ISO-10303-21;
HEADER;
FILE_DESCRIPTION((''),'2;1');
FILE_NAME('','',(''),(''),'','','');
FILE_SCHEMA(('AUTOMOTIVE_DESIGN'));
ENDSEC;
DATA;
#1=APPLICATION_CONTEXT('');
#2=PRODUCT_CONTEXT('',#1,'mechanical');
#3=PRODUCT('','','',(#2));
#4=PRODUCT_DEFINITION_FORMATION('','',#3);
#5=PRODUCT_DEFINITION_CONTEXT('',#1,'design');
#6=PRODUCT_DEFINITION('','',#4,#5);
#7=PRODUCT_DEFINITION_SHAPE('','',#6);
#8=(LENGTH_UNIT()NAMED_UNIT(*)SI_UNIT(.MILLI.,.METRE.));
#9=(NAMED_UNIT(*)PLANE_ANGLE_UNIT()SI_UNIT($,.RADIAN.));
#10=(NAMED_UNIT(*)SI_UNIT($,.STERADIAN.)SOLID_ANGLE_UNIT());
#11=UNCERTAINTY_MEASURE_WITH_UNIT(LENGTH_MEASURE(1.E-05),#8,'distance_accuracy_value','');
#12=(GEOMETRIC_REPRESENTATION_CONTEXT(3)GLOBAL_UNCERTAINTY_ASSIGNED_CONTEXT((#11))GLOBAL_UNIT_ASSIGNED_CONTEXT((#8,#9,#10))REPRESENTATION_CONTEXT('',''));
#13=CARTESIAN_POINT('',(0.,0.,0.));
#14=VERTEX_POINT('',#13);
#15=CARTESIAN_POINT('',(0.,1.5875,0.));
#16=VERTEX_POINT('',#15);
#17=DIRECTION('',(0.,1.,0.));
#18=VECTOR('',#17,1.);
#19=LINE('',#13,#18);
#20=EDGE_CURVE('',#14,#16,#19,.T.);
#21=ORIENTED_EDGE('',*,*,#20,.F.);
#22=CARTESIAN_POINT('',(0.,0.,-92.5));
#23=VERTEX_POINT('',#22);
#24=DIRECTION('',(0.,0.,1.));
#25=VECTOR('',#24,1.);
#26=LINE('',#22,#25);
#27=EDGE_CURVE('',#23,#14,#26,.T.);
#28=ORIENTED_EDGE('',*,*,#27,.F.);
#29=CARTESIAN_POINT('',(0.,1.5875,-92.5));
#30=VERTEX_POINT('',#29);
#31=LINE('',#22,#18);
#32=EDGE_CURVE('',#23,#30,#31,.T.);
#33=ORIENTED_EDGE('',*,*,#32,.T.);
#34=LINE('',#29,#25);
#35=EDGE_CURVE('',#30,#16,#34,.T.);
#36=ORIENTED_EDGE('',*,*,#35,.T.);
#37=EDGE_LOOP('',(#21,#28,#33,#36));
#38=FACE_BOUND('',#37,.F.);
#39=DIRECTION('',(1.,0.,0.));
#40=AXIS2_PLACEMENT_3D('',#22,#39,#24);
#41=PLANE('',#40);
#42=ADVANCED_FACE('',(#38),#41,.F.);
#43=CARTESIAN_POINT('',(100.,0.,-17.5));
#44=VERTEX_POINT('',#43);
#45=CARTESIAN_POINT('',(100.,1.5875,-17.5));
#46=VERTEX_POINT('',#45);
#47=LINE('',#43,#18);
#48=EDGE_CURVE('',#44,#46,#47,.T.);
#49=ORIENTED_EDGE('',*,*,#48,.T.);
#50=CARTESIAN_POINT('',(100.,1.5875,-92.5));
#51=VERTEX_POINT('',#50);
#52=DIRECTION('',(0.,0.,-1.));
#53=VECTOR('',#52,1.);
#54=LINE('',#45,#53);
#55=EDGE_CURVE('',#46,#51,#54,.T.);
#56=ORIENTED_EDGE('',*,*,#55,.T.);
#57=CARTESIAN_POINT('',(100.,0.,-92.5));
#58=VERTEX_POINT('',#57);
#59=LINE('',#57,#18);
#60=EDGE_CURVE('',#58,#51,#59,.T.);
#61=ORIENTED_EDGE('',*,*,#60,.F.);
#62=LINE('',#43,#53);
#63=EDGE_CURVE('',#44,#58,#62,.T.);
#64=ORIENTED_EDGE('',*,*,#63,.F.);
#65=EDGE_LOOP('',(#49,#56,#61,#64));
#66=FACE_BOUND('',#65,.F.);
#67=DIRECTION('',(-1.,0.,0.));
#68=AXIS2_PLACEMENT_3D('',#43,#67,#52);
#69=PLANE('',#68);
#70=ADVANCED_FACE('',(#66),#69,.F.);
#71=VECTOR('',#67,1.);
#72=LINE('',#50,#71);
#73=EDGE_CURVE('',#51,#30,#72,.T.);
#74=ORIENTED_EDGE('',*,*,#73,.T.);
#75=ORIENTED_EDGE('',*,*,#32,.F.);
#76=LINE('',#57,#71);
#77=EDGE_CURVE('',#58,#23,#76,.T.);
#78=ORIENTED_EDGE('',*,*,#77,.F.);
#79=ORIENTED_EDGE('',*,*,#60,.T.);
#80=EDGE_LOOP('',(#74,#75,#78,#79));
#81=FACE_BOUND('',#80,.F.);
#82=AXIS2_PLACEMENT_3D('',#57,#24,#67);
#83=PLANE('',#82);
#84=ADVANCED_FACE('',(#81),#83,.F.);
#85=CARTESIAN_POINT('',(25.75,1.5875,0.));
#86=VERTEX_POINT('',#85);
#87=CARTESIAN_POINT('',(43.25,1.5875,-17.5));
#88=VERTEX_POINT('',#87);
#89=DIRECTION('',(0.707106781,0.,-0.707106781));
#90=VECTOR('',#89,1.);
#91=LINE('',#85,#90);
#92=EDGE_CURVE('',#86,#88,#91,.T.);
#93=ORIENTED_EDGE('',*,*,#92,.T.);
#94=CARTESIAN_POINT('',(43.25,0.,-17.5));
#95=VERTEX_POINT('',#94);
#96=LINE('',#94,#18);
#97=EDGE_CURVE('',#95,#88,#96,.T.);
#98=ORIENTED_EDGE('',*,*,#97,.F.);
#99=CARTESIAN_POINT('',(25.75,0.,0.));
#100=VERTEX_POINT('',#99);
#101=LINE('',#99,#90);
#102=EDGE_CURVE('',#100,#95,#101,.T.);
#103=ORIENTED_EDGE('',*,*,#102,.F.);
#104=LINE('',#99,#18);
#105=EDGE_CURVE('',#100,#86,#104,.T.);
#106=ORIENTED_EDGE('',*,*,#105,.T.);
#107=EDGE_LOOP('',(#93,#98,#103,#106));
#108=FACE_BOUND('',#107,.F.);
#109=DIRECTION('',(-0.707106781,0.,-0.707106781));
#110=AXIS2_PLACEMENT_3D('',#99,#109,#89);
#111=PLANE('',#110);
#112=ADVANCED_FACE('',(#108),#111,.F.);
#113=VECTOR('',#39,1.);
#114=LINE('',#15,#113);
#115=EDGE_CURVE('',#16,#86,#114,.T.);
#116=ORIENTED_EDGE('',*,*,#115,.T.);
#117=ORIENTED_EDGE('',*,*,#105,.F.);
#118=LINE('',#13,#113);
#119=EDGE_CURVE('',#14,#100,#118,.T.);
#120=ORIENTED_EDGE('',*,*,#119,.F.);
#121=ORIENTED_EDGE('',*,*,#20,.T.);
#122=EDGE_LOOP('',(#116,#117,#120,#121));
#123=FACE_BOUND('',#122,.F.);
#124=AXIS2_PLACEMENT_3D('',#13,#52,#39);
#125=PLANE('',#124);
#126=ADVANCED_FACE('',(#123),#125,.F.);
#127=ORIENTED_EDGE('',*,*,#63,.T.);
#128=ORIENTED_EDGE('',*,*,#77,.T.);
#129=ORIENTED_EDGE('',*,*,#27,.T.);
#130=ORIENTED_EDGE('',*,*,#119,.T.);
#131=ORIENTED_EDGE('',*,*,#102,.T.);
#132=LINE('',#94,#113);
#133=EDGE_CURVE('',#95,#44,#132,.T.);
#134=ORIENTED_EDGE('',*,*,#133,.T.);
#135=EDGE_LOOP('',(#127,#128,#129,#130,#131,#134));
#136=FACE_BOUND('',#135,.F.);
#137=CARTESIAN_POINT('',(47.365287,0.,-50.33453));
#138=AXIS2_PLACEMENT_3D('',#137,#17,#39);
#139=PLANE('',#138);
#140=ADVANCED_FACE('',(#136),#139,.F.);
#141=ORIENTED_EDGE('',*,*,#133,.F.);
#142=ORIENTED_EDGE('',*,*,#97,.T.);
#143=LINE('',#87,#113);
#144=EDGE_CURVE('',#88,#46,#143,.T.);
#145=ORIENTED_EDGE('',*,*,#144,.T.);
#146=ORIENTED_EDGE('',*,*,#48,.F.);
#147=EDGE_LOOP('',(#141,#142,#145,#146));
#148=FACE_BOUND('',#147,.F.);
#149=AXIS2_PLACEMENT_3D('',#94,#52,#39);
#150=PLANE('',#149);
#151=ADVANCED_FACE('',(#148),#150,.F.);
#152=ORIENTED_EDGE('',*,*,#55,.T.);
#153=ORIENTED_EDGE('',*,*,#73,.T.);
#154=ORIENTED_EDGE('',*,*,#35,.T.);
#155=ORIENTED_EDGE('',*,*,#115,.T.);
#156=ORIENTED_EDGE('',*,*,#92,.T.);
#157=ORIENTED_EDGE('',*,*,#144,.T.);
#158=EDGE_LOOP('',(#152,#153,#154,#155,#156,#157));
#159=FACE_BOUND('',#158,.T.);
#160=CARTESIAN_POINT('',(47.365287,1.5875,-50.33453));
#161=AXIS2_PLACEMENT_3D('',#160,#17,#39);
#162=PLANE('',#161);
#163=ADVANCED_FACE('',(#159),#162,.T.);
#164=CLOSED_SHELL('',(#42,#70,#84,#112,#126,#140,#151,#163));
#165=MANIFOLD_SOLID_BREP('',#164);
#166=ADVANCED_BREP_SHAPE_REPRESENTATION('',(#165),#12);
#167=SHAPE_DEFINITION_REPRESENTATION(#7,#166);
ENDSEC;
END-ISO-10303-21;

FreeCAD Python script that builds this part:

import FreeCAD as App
import Part
import Sketcher
from FreeCAD import Vector
Q = App.Units.Quantity

doc = App.newDocument("Part")
body = doc.addObject("PartDesign::Body", "Body")

# Sketch on XZ plane
sketch1 = body.newObject("Sketcher::SketchObject", "Sketch")
sketch1.AttachmentSupport = (doc.getObject("XZ_Plane"), [""])
sketch1.MapMode = "FlatFace"
sketch1.addGeometry(Part.LineSegment(Vector(0, 0, 0), Vector(26, 0, 0)), False)
sketch1.addGeometry(Part.LineSegment(Vector(26, 0, 0), Vector(43, -18, 0)), False)
sketch1.addGeometry(Part.LineSegment(Vector(43, -18, 0), Vector(100, -18, 0)), False)
sketch1.addGeometry(Part.LineSegment(Vector(100, -18, 0), Vector(100, -92, 0)), False)
sketch1.addGeometry(Part.LineSegment(Vector(100, -92, 0), Vector(0, -92, 0)), False)
sketch1.addGeometry(Part.LineSegment(Vector(0, -92, 0), Vector(0, 0, 0)), False)
sketch1.addConstraint(Sketcher.Constraint("Coincident", 0, 2, 1, 1))
sketch1.addConstraint(Sketcher.Constraint("Coincident", 1, 2, 2, 1))
sketch1.addConstraint(Sketcher.Constraint("Coincident", 2, 2, 3, 1))
sketch1.addConstraint(Sketcher.Constraint("Coincident", 3, 2, 4, 1))
sketch1.addConstraint(Sketcher.Constraint("Coincident", 4, 2, 5, 1))
sketch1.addConstraint(Sketcher.Constraint("Coincident", 5, 2, 0, 1))
sketch1.addConstraint(Sketcher.Constraint("Horizontal", 0))
sketch1.addConstraint(Sketcher.Constraint("Horizontal", 2))
sketch1.addConstraint(Sketcher.Constraint("Vertical", 3))
sketch1.addConstraint(Sketcher.Constraint("Horizontal", 4))
sketch1.addConstraint(Sketcher.Constraint("Vertical", 5))
sketch1.addConstraint(Sketcher.Constraint("Coincident", 5, 2, -1, 1))
sketch1.addConstraint(Sketcher.Constraint("DistanceX", 4, 2, 4, 1, 100.0))
sketch1.addConstraint(Sketcher.Constraint("DistanceY", 3, 2, 3, 1, 75.0))
sketch1.addConstraint(Sketcher.Constraint("Angle", 1, Q("-45 deg")))
sketch1.addConstraint(Sketcher.Constraint("DistanceY", 5, 1, 5, 2, 92.5))
sketch1.addConstraint(Sketcher.Constraint("DistanceX", 0, 1, 0, 2, 25.75))
pad1 = body.newObject("PartDesign::Pad", "Pad")
pad1.Profile = sketch1
pad1.Length = 1.5875
pad1.Reversed = True

doc.recompute()
